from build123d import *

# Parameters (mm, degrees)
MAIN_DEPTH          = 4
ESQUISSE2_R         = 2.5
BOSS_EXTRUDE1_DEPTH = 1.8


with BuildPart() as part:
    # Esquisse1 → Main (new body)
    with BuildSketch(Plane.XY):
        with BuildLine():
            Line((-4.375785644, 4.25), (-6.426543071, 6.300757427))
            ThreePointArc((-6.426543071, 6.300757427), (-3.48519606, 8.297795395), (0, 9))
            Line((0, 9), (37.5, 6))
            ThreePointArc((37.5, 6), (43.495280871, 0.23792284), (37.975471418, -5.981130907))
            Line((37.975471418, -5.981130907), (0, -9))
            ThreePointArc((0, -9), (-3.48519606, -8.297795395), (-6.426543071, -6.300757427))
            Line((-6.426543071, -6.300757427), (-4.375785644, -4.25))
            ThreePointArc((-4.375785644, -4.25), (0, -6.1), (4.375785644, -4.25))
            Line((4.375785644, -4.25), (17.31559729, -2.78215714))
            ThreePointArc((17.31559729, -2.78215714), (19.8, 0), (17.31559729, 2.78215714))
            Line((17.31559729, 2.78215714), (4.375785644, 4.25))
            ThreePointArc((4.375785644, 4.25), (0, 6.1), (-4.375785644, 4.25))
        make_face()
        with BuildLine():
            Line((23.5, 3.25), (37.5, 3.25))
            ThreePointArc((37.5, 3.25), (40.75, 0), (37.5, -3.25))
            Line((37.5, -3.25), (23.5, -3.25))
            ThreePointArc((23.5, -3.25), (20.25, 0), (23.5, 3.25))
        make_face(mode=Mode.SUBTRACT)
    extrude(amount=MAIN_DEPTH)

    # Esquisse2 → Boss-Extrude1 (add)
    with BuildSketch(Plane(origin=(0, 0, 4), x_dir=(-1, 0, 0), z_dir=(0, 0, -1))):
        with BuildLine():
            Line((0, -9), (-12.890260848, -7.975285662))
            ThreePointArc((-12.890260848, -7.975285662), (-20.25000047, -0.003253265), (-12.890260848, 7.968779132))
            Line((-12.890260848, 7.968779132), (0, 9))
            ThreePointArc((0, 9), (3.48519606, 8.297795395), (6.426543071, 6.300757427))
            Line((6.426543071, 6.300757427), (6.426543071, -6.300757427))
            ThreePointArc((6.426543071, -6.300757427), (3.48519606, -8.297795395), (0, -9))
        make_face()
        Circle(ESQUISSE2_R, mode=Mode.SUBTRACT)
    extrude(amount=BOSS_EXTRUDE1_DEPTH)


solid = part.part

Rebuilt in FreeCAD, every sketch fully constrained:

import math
import FreeCAD as App
import Part
import Sketcher
Q = App.Units.Quantity

doc = App.newDocument("Part")
body = doc.addObject("PartDesign::Body", "Body")

sketch1 = body.newObject("Sketcher::SketchObject", "Sketch")
sketch1.AttachmentSupport = (doc.getObject("XY_Plane"), [""])
sketch1.MapMode = "FlatFace"
sketch1.addGeometry(Part.LineSegment(App.Vector(-6.426543, 6.300757, 0), App.Vector(-4.375786, 4.25, 0)), False)
sketch1.addGeometry(Part.ArcOfCircle(Part.Circle(App.Vector(0, 0, 0), App.Vector(0, 0, 1), 6.1), math.radians(44.164543), math.radians(135.835457)), False)
sketch1.addGeometry(Part.LineSegment(App.Vector(4.375786, 4.25, 0), App.Vector(17.315597, 2.782157, 0)), False)
sketch1.addGeometry(Part.ArcOfCircle(Part.Circle(App.Vector(17, 0, 0), App.Vector(0, 0, 1), 2.8), math.radians(-83.52825), math.radians(83.52825)), False)
sketch1.addGeometry(Part.LineSegment(App.Vector(17.315597, -2.782157, 0), App.Vector(4.375786, -4.25, 0)), False)
sketch1.addGeometry(Part.ArcOfCircle(Part.Circle(App.Vector(0, 0, 0), App.Vector(0, 0, 1), 6.1), math.radians(-135.835457), math.radians(-44.164543)), False)
sketch1.addGeometry(Part.LineSegment(App.Vector(-4.375786, -4.25, 0), App.Vector(-6.426543, -6.300757, 0)), False)
sketch1.addGeometry(Part.ArcOfCircle(Part.Circle(App.Vector(0, 0, 0), App.Vector(0, 0, 1), 9), math.radians(-135.566244), math.radians(-90)), False)
sketch1.addGeometry(Part.LineSegment(App.Vector(0, -9, 0), App.Vector(37.975471, -5.981131, 0)), False)
sketch1.addGeometry(Part.ArcOfCircle(Part.Circle(App.Vector(37.5, 0, 0), App.Vector(0, 0, 1), 6), math.radians(-85.454817), math.radians(90)), False)
sketch1.addGeometry(Part.LineSegment(App.Vector(37.5, 6, 0), App.Vector(0, 9, 0)), False)
sketch1.addGeometry(Part.ArcOfCircle(Part.Circle(App.Vector(0, 0, 0), App.Vector(0, 0, 1), 9), math.radians(90), math.radians(135.566244)), False)
sketch1.addGeometry(Part.LineSegment(App.Vector(23.5, 3.25, 0), App.Vector(37.5, 3.25, 0)), False)
sketch1.addGeometry(Part.ArcOfCircle(Part.Circle(App.Vector(37.5, 0, 0), App.Vector(0, 0, 1), 3.25), math.radians(-90), math.radians(90)), False)
sketch1.addGeometry(Part.LineSegment(App.Vector(37.5, -3.25, 0), App.Vector(23.5, -3.25, 0)), False)
sketch1.addGeometry(Part.ArcOfCircle(Part.Circle(App.Vector(23.5, 0, 0), App.Vector(0, 0, 1), 3.25), math.radians(90), math.radians(270)), False)
sketch1.addConstraint(Sketcher.Constraint("Coincident", 0, 2, 1, 2))
sketch1.addConstraint(Sketcher.Constraint("Coincident", 1, 1, 2, 1))
sketch1.addConstraint(Sketcher.Constraint("Tangent", 2, 2, 3, 2))
sketch1.addConstraint(Sketcher.Constraint("Tangent", 3, 1, 4, 1))
sketch1.addConstraint(Sketcher.Constraint("Coincident", 4, 2, 5, 2))
sketch1.addConstraint(Sketcher.Constraint("Coincident", 5, 1, 6, 1))
sketch1.addConstraint(Sketcher.Constraint("Coincident", 6, 2, 7, 1))
sketch1.addConstraint(Sketcher.Constraint("Coincident", 7, 2, 8, 1))
sketch1.addConstraint(Sketcher.Constraint("Tangent", 8, 2, 9, 1))
sketch1.addConstraint(Sketcher.Constraint("Coincident", 9, 2, 10, 1))
sketch1.addConstraint(Sketcher.Constraint("Coincident", 10, 2, 11, 1))
sketch1.addConstraint(Sketcher.Constraint("Coincident", 11, 2, 0, 1))
sketch1.addConstraint(Sketcher.Constraint("Tangent", 12, 2, 13, 2))
sketch1.addConstraint(Sketcher.Constraint("Tangent", 13, 1, 14, 1))
sketch1.addConstraint(Sketcher.Constraint("Tangent", 14, 2, 15, 2))
sketch1.addConstraint(Sketcher.Constraint("Tangent", 15, 1, 12, 1))
sketch1.addConstraint(Sketcher.Constraint("Horizontal", 12))
sketch1.addConstraint(Sketcher.Constraint("Horizontal", 14))
sketch1.addConstraint(Sketcher.Constraint("Coincident", 1, 3, -1, 1))
sketch1.addConstraint(Sketcher.Constraint("Coincident", 5, 3, -1, 1))
sketch1.addConstraint(Sketcher.Constraint("Coincident", 7, 3, -1, 1))
sketch1.addConstraint(Sketcher.Constraint("Coincident", 11, 3, -1, 1))
sketch1.addConstraint(Sketcher.Constraint("Coincident", 13, 3, 9, 3))
sketch1.addConstraint(Sketcher.Constraint("Equal", 1, 5))
sketch1.addConstraint(Sketcher.Constraint("Equal", 7, 11))
sketch1.addConstraint(Sketcher.Constraint("Symmetric", 2, 2, 3, 1, -1))
sketch1.addConstraint(Sketcher.Constraint("PointOnObject", 9, 3, -1))
sketch1.addConstraint(Sketcher.Constraint("PointOnObject", 7, 2, -2))
sketch1.addConstraint(Sketcher.Constraint("PointOnObject", 10, 2, -2))
sketch1.addConstraint(Sketcher.Constraint("Perpendicular", 0, 6))
sketch1.addConstraint(Sketcher.Constraint("Horizontal", 0, 2, 1, 1))
sketch1.addConstraint(Sketcher.Constraint("Horizontal", 4, 2, 5, 1))
sketch1.addConstraint(Sketcher.Constraint("Vertical", 13, 3, 9, 2))
sketch1.addConstraint(Sketcher.Constraint("Vertical", 6, 2, 11, 2))
sketch1.addConstraint(Sketcher.Constraint("Radius", 7, Q("9 mm")))
sketch1.addConstraint(Sketcher.Constraint("Radius", 9, Q("6 mm")))
sketch1.addConstraint(Sketcher.Constraint("Radius", 1, Q("6.1 mm")))
sketch1.addConstraint(Sketcher.Constraint("Radius", 3, Q("2.8 mm")))
sketch1.addConstraint(Sketcher.Constraint("DistanceX", 12, 1, 12, 2, Q("14 mm")))
sketch1.addConstraint(Sketcher.Constraint("Radius", 13, Q("3.25 mm")))
sketch1.addConstraint(Sketcher.Constraint("DistanceX", -1, 1, 3, 3, Q("17 mm")))
sketch1.addConstraint(Sketcher.Constraint("DistanceX", -1, 1, 9, 3, Q("37.5 mm")))
sketch1.addConstraint(Sketcher.Constraint("DistanceY", 4, 2, 1, 1, Q("8.5 mm")))
pad1 = body.newObject("PartDesign::Pad", "Pad")
pad1.Profile = sketch1
pad1.Length = 4

sketch2 = body.newObject("Sketcher::SketchObject", "Sketch001")
sketch2.AttachmentSupport = (doc.getObject("XY_Plane"), [""])
sketch2.MapMode = "FlatFace"
sketch2.AttachmentOffset = App.Placement(App.Vector(0, 0, 4), App.Rotation())
sketch2.addGeometry(Part.LineSegment(App.Vector(12.890261, -7.975286, 0), App.Vector(0, -9, 0)), False)
sketch2.addGeometry(Part.ArcOfCircle(Part.Circle(App.Vector(0, 0, 0), App.Vector(0, 0, 1), 9), math.radians(-135.566244), math.radians(-90)), False)
sketch2.addGeometry(Part.LineSegment(App.Vector(-6.426543, -6.300757, 0), App.Vector(-6.426543, 6.300757, 0)), False)
sketch2.addGeometry(Part.ArcOfCircle(Part.Circle(App.Vector(0, 0, 0), App.Vector(0, 0, 1), 9), math.radians(90), math.radians(135.566244)), False)
sketch2.addGeometry(Part.LineSegment(App.Vector(0, 9, 0), App.Vector(12.890261, 7.968779, 0)), False)
sketch2.addGeometry(Part.ArcOfCircle(Part.Circle(App.Vector(12.252498, -0.003253, 0), App.Vector(0, 0, 1), 7.997502), math.radians(-85.426079), math.radians(85.426079)), False)
sketch2.addGeometry(Part.Circle(App.Vector(0, 0, 0), App.Vector(0, 0, 1), 2.5), False)
sketch2.addConstraint(Sketcher.Constraint("Coincident", 0, 2, 1, 2))
sketch2.addConstraint(Sketcher.Constraint("Coincident", 1, 1, 2, 1))
sketch2.addConstraint(Sketcher.Constraint("Coincident", 2, 2, 3, 2))
sketch2.addConstraint(Sketcher.Constraint("Coincident", 3, 1, 4, 1))
sketch2.addConstraint(Sketcher.Constraint("Tangent", 4, 2, 5, 2))
sketch2.addConstraint(Sketcher.Constraint("Coincident", 5, 1, 0, 1))
sketch2.addConstraint(Sketcher.Constraint("Vertical", 2))
sketch2.addConstraint(Sketcher.Constraint("Coincident", 1, 3, -1, 1))
sketch2.addConstraint(Sketcher.Constraint("Coincident", 3, 3, -1, 1))
sketch2.addConstraint(Sketcher.Constraint("Coincident", 6, 3, -1, 1))
sketch2.addConstraint(Sketcher.Constraint("Equal", 1, 3))
sketch2.addConstraint(Sketcher.Constraint("PointOnObject", 0, 2, -2))
sketch2.addConstraint(Sketcher.Constraint("PointOnObject", 3, 1, -2))
sketch2.addConstraint(Sketcher.Constraint("Vertical", 4, 2, 5, 1))
sketch2.addConstraint(Sketcher.Constraint("Diameter", 6, Q("5 mm")))
sketch2.addConstraint(Sketcher.Constraint("Radius", 1, Q("9 mm")))
sketch2.addConstraint(Sketcher.Constraint("Radius", 5, Q("7.997502 mm")))
sketch2.addConstraint(Sketcher.Constraint("DistanceX", -1, 1, 5, 3, Q("12.252498 mm")))
sketch2.addConstraint(Sketcher.Constraint("DistanceY", 2, 1, 2, 2, Q("12.601515 mm")))
sketch2.addConstraint(Sketcher.Constraint("DistanceX", -1, 1, 4, 2, Q("12.890261 mm")))
pad2 = body.newObject("PartDesign::Pad", "Pad001")
pad2.Profile = sketch2
pad2.Length = 1.8
pad2.Reversed = True

doc.recompute()
